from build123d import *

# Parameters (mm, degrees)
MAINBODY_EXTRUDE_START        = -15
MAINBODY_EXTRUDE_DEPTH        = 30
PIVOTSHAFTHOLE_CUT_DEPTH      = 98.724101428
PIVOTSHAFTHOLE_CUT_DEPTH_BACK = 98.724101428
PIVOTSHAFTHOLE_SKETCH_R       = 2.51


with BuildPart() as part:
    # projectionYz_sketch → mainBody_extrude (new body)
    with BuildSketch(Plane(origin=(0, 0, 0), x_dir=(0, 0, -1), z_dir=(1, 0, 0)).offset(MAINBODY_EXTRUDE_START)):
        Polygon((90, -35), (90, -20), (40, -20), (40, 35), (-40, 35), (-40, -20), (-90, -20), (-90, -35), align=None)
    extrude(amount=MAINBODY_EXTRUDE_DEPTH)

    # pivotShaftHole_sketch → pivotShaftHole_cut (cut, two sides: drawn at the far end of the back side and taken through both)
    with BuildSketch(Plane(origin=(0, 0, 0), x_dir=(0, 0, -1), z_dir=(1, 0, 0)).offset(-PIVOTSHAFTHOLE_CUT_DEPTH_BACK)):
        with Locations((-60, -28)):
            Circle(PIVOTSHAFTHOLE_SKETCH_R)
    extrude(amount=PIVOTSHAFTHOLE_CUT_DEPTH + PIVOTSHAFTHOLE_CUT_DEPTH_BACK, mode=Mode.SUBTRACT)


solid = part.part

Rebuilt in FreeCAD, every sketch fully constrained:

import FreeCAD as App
import Part
import Sketcher
Q = App.Units.Quantity


def add_polygon(sketch, points):
    """Adds a closed chain of lines whose ends are joined by coincident constraints."""
    first, n = sketch.GeometryCount, len(points)
    for a, b in zip(points, points[1:] + points[:1]):
        sketch.addGeometry(Part.LineSegment(App.Vector(*a, 0), App.Vector(*b, 0)), False)
    for i in range(n):
        sketch.addConstraint(Sketcher.Constraint("Coincident", first + i, 2, first + (i + 1) % n, 1))

doc = App.newDocument("Part")
body = doc.addObject("PartDesign::Body", "Body")

# Sketch on YZ plane
sketch1 = doc.addObject("Sketcher::SketchObject", "Sketch")
body.addObject(sketch1)
sketch1.AttachmentSupport = (doc.YZ_Plane, [""])
sketch1.MapMode = "FlatFace"
sketch1.AttachmentOffset = App.Placement(App.Vector(0, 0, -15), App.Rotation())
add_polygon(sketch1, [(-35, -90), (-20, -90), (-20, -40), (35, -40), (35, 40), (-20, 40), (-20, 90), (-35, 90)])  # lines 0-7
sketch1.addConstraint(Sketcher.Constraint("Horizontal", 0))
sketch1.addConstraint(Sketcher.Constraint("Vertical", 1))
sketch1.addConstraint(Sketcher.Constraint("Horizontal", 2))
sketch1.addConstraint(Sketcher.Constraint("Vertical", 3))
sketch1.addConstraint(Sketcher.Constraint("Horizontal", 4))
sketch1.addConstraint(Sketcher.Constraint("Vertical", 5))
sketch1.addConstraint(Sketcher.Constraint("Horizontal", 6))
sketch1.addConstraint(Sketcher.Constraint("Vertical", 7))
sketch1.addConstraint(Sketcher.Constraint("Symmetric", 1, 2, 4, 2, -1))
sketch1.addConstraint(Sketcher.Constraint("Equal", 1, 5))
sketch1.addConstraint(Sketcher.Constraint("DistanceX", 0, 1, 0, 2, Q("15 mm")))
sketch1.addConstraint(Sketcher.Constraint("DistanceX", 2, 1, 2, 2, Q("55 mm")))
sketch1.addConstraint(Sketcher.Constraint("DistanceY", 1, 1, 1, 2, Q("50 mm")))
sketch1.addConstraint(Sketcher.Constraint("DistanceY", 3, 1, 3, 2, Q("80 mm")))
sketch1.addConstraint(Sketcher.Constraint("DistanceX", 0, 2, -1, 1, Q("20 mm")))
pad1 = doc.addObject("PartDesign::Pad", "Pad")
body.addObject(pad1)
pad1.Profile = sketch1
pad1.Length = 30

# Sketch on YZ plane
sketch2 = doc.addObject("Sketcher::SketchObject", "Sketch001")
body.addObject(sketch2)
sketch2.AttachmentSupport = (doc.YZ_Plane, [""])
sketch2.MapMode = "FlatFace"
sketch2.addGeometry(Part.Circle(App.Vector(-28, 60, 0), App.Vector(0, 0, 1), 2.51), False)
sketch2.addConstraint(Sketcher.Constraint("Diameter", 0, Q("5.02 mm")))
sketch2.addConstraint(Sketcher.Constraint("DistanceX", 0, 3, -1, 1, Q("28 mm")))
sketch2.addConstraint(Sketcher.Constraint("DistanceY", -1, 1, 0, 3, Q("60 mm")))
pocket1 = doc.addObject("PartDesign::Pocket", "Pocket")
body.addObject(pocket1)
pocket1.Profile = sketch2
pocket1.Type = "ThroughAll"
pocket1.Midplane = True

doc.recompute()
